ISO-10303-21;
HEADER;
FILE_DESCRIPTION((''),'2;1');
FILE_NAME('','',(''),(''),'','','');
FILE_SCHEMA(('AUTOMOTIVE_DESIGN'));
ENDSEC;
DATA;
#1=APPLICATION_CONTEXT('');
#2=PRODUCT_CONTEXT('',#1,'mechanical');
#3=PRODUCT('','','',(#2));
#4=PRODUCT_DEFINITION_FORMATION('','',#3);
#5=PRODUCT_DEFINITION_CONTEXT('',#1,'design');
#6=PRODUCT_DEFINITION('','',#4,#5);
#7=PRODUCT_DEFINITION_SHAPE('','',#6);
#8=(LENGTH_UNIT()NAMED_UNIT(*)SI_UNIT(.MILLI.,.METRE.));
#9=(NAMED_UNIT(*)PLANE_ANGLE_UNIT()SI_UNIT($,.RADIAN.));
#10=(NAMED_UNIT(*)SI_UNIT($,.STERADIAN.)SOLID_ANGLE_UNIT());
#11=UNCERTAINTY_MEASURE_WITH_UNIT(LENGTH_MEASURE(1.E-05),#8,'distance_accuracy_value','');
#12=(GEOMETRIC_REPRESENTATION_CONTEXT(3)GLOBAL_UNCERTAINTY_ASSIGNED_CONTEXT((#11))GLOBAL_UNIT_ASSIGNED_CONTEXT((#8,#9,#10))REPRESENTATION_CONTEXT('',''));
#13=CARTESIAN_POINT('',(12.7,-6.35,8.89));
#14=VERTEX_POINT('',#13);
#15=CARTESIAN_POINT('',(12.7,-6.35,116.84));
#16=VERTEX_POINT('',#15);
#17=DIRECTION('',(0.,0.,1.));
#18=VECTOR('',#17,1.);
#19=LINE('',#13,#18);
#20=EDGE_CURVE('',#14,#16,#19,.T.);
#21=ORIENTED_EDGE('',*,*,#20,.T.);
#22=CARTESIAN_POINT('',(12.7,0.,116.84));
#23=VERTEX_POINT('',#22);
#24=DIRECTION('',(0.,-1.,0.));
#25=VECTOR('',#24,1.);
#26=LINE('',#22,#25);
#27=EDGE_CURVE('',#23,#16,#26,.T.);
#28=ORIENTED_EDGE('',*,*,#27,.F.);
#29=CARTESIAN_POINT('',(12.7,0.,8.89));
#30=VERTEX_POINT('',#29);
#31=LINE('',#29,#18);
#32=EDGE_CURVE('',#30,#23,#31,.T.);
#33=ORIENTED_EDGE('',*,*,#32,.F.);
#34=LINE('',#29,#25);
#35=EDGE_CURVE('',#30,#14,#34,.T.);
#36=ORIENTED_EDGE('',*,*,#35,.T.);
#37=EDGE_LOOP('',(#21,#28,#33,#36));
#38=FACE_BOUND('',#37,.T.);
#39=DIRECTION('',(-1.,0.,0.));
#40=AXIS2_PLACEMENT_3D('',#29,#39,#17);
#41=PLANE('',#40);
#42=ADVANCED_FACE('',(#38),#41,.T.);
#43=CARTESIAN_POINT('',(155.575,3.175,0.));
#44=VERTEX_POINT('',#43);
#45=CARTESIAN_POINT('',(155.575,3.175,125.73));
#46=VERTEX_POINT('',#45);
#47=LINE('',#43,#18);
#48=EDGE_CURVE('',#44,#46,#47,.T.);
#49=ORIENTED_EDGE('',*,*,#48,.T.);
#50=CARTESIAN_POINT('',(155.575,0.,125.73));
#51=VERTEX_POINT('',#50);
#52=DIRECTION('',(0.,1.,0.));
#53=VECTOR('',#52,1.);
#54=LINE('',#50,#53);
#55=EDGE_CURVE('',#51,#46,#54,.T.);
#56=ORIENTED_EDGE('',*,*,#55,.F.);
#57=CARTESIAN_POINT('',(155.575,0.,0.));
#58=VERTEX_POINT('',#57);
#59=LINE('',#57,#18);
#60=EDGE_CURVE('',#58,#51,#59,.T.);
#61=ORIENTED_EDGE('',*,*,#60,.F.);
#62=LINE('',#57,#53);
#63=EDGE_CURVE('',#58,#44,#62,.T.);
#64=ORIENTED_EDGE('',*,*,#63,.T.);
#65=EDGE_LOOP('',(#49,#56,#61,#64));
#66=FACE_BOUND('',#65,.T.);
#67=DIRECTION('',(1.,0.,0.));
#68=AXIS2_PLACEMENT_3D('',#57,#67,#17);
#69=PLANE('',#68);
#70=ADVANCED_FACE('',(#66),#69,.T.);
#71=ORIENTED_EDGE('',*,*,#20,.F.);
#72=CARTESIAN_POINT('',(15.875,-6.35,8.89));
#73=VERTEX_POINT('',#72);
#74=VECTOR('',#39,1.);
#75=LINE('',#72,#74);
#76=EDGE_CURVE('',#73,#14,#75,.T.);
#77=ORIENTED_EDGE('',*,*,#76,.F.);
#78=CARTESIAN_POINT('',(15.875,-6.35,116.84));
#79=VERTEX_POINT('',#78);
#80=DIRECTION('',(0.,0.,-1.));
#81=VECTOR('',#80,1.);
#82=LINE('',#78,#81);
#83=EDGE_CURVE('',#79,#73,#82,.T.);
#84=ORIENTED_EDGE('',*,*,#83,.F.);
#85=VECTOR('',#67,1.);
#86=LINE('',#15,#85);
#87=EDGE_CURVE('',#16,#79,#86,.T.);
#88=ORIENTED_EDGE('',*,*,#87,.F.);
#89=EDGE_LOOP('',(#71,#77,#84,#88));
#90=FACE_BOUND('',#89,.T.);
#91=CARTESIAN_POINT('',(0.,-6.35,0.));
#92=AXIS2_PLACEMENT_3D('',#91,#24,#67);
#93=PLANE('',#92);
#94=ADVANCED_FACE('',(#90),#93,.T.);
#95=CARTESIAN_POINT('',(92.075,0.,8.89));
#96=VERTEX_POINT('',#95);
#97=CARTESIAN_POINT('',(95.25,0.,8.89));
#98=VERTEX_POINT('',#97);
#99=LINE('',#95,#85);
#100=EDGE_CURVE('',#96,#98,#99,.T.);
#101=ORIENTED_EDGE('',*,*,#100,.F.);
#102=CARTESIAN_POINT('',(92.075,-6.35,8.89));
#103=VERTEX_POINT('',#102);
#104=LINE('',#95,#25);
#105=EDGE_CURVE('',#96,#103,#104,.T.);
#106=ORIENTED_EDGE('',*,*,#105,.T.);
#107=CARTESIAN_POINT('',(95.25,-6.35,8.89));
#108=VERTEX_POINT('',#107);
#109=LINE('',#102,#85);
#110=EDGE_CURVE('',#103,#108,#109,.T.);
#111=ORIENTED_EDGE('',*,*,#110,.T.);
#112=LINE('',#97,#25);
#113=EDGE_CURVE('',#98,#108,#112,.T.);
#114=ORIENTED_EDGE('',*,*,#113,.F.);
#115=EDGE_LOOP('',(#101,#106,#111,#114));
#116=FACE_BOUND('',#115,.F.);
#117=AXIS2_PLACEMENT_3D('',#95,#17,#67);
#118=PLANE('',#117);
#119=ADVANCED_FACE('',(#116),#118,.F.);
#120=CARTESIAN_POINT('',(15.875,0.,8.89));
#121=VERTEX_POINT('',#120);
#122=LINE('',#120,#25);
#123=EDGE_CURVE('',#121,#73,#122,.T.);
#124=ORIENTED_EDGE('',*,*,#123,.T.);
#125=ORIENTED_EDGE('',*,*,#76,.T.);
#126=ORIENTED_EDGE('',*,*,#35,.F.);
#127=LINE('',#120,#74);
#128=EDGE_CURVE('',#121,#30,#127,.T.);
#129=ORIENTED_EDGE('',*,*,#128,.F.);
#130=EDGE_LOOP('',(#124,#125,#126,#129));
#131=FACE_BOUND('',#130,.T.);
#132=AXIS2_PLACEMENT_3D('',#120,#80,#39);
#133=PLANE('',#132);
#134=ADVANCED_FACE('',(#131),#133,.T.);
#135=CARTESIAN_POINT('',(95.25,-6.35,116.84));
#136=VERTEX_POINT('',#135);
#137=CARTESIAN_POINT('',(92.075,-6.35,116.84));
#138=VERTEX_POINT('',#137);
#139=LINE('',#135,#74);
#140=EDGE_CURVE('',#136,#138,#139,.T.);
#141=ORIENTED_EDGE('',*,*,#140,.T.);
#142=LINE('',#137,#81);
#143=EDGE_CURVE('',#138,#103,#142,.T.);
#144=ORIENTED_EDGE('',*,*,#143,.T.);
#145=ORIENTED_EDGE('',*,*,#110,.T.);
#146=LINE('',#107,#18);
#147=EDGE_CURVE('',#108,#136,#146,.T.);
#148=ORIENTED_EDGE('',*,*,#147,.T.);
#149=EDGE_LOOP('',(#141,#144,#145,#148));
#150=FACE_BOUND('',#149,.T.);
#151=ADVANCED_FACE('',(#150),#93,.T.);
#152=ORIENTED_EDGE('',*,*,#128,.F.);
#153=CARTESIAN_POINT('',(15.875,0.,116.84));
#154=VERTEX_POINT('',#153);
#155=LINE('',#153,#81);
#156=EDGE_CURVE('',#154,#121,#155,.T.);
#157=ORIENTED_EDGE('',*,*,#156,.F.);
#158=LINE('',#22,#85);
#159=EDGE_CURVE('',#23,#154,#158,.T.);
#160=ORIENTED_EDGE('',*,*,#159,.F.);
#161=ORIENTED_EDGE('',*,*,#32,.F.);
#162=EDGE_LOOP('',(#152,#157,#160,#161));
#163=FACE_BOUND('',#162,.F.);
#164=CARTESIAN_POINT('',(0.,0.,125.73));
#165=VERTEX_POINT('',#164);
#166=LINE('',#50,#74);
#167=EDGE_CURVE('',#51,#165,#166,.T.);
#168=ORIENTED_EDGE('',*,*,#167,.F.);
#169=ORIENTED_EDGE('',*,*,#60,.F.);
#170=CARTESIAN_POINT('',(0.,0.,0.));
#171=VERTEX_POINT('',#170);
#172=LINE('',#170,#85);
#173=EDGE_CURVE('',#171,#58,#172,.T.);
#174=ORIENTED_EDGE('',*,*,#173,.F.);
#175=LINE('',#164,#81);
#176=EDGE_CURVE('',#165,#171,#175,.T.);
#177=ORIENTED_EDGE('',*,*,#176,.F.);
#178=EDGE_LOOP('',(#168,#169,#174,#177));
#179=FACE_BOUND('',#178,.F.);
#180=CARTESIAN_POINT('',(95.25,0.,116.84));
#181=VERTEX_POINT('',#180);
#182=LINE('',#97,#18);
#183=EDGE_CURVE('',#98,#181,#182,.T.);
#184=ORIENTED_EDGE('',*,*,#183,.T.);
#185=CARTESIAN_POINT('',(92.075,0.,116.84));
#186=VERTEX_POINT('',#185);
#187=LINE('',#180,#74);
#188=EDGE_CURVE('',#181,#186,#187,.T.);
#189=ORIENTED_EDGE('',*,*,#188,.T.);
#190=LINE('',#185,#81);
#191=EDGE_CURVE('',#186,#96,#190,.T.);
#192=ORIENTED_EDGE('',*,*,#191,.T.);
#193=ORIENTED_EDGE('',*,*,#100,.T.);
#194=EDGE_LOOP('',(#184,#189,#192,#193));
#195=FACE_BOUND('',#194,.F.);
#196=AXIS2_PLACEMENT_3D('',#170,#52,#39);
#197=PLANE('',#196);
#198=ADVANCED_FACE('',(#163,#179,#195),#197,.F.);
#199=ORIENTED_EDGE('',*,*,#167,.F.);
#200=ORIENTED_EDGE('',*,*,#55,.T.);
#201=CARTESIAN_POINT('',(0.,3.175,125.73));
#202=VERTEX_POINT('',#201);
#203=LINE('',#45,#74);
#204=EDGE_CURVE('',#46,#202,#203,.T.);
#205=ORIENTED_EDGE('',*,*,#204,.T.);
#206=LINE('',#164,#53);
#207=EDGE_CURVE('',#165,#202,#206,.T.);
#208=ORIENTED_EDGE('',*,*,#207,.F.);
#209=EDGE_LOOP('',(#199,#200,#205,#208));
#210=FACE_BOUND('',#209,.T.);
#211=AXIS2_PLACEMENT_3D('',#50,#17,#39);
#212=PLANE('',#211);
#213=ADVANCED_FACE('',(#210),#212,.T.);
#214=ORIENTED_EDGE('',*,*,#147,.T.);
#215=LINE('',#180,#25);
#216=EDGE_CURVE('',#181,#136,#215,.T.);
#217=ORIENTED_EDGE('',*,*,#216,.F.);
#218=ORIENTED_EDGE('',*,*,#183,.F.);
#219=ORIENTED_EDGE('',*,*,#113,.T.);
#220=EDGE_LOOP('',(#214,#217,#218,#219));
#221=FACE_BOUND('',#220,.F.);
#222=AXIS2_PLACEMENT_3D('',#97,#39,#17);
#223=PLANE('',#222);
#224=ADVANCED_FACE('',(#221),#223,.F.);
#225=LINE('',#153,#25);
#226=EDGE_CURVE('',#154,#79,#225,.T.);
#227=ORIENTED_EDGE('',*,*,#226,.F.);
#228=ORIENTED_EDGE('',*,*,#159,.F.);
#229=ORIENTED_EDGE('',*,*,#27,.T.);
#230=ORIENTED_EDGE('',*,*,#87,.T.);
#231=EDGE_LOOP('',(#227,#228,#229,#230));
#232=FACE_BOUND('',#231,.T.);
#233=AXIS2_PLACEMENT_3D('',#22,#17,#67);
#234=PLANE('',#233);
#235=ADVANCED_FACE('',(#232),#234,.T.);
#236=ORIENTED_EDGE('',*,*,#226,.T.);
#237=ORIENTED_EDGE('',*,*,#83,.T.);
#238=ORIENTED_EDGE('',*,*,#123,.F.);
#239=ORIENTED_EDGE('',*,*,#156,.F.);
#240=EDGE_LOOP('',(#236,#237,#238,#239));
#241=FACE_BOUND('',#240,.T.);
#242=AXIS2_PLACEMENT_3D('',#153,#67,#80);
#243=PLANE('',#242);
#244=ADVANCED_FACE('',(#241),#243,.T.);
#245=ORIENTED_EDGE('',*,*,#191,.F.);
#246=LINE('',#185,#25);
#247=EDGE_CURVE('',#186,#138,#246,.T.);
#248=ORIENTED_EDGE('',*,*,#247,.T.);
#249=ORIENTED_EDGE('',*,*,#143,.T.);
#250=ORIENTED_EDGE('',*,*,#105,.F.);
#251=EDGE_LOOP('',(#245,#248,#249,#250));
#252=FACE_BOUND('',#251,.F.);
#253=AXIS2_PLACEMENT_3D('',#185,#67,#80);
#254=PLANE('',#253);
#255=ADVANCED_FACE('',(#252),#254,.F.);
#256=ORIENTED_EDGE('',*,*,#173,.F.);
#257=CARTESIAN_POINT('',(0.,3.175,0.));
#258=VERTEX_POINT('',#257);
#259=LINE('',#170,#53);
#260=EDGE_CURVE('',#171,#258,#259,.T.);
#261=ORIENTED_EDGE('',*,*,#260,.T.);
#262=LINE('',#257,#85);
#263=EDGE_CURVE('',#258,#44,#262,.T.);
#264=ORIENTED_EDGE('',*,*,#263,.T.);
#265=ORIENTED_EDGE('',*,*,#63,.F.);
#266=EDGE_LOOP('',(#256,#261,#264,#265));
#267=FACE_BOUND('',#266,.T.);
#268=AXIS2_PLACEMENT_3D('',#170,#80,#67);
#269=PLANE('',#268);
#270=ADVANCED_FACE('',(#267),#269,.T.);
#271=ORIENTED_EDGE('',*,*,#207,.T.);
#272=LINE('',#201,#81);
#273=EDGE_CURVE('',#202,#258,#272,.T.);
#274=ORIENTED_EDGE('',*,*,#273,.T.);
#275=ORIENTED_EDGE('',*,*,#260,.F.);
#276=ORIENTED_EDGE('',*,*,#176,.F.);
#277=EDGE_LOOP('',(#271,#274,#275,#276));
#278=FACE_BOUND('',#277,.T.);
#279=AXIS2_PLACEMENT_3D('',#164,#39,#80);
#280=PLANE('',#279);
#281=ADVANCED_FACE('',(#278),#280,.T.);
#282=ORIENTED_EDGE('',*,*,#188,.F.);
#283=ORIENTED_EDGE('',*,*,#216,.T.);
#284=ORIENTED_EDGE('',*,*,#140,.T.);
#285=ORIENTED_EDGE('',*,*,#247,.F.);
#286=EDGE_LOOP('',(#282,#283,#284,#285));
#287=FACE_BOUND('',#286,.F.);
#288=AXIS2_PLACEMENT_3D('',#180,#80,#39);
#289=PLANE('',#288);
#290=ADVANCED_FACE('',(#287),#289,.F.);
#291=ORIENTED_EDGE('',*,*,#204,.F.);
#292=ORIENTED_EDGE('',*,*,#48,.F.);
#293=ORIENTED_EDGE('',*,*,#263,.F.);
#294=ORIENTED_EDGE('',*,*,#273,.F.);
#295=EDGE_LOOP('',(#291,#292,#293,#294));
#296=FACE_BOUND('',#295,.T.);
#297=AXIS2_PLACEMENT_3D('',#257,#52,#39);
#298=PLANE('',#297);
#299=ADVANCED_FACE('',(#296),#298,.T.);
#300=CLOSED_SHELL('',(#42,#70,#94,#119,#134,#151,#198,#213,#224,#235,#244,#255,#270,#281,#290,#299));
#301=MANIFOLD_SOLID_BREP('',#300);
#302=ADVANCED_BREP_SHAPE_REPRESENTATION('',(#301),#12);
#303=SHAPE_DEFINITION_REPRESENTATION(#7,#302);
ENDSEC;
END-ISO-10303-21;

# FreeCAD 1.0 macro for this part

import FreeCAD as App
import Part
import Sketcher

V = App.Vector
Q = App.Units.Quantity


def add_polygon(sketch, points):
    """Adds a closed chain of lines whose ends are joined by coincident constraints."""
    first, n = sketch.GeometryCount, len(points)
    for a, b in zip(points, points[1:] + points[:1]):
        sketch.addGeometry(Part.LineSegment(App.Vector(*a, 0), App.Vector(*b, 0)), False)
    for i in range(n):
        sketch.addConstraint(Sketcher.Constraint("Coincident", first + i, 2, first + (i + 1) % n, 1))

doc = App.newDocument("Part")
params = doc.addObject("Spreadsheet::Sheet", "Params")
for row, (alias, value) in enumerate([
    ("sketch1_height", "4.95 in"),
    ("sketch1_width", "6.125 in"),
    ("pad1_length", "0.125 in"),
    ("sketch2_height", "4.25 in"),
    ("sketch2_width", "0.125 in"),
    ("pad2_length", "0.25 in"),
], start=1):
    params.set(f"A{row}", alias)
    params.set(f"B{row}", "=" + value)
    params.setAlias(f"B{row}", alias)

body = doc.addObject("PartDesign::Body", "Body")

# Sketch on XZ plane
sketch1 = body.newObject("Sketcher::SketchObject", "Sketch")
sketch1.AttachmentSupport = (doc.getObject("XZ_Plane"), [""])
sketch1.MapMode = "FlatFace"
add_polygon(sketch1, [(156, 0), (0, 0), (0, 126), (156, 126)])  # lines 0-3
sketch1.addConstraint([
    Sketcher.Constraint("Horizontal", 0),
    Sketcher.Constraint("Vertical", 1),
    Sketcher.Constraint("Horizontal", 2),
    Sketcher.Constraint("Vertical", 3),
    Sketcher.Constraint("Coincident", 0, 2, -1, 1),
    Sketcher.Constraint("DistanceY", 1, 1, 1, 2, Q("4.95 in")),
    Sketcher.Constraint("DistanceX", 0, 2, 0, 1, Q("6.125 in")),
])
sketch1.setExpression("Constraints[9]", "Params.sketch1_height")
sketch1.setExpression("Constraints[10]", "Params.sketch1_width")
pad1 = body.newObject("PartDesign::Pad", "Pad")
pad1.Profile = sketch1
pad1.setExpression("Length", "Params.pad1_length")
pad1.Reversed = True

# Sketch on XZ plane
sketch2 = body.newObject("Sketcher::SketchObject", "Sketch001")
sketch2.AttachmentSupport = (doc.getObject("XZ_Plane"), [""])
sketch2.MapMode = "FlatFace"
add_polygon(sketch2, [(12.7, 8.9), (15.9, 8.9), (15.9, 116.8), (12.7, 116.8)])  # lines 0-3
add_polygon(sketch2, [(92.1, 116.8), (92.1, 8.9), (95.2, 8.9), (95.2, 116.8)])  # lines 4-7
sketch2.addConstraint([
    Sketcher.Constraint("Horizontal", 0),
    Sketcher.Constraint("Vertical", 1),
    Sketcher.Constraint("Horizontal", 2),
    Sketcher.Constraint("Vertical", 3),
    Sketcher.Constraint("Vertical", 4),
    Sketcher.Constraint("Horizontal", 5),
    Sketcher.Constraint("Vertical", 6),
    Sketcher.Constraint("Horizontal", 7),
    Sketcher.Constraint("Horizontal", 3, 2, 4, 2),
    Sketcher.Constraint("Horizontal", 2, 2, 6, 2),
    Sketcher.Constraint("Equal", 2, 5),
    Sketcher.Constraint("DistanceX", 0, 2, 4, 2, Q("3 in")),
    Sketcher.Constraint("DistanceY", 1, 1, 1, 2, Q("4.25 in")),
    Sketcher.Constraint("DistanceX", -1, 1, 2, 2, Q("0.5 in")),
    Sketcher.Constraint("DistanceX", 0, 1, 0, 2, Q("0.125 in")),
    Sketcher.Constraint("DistanceY", -1, 1, 0, 2, Q("0.35 in")),
])
sketch2.setExpression("Constraints[20]", "Params.sketch2_height")
sketch2.setExpression("Constraints[22]", "Params.sketch2_width")
pad2 = body.newObject("PartDesign::Pad", "Pad001")
pad2.Profile = sketch2
pad2.setExpression("Length", "Params.pad2_length")

doc.recompute()
